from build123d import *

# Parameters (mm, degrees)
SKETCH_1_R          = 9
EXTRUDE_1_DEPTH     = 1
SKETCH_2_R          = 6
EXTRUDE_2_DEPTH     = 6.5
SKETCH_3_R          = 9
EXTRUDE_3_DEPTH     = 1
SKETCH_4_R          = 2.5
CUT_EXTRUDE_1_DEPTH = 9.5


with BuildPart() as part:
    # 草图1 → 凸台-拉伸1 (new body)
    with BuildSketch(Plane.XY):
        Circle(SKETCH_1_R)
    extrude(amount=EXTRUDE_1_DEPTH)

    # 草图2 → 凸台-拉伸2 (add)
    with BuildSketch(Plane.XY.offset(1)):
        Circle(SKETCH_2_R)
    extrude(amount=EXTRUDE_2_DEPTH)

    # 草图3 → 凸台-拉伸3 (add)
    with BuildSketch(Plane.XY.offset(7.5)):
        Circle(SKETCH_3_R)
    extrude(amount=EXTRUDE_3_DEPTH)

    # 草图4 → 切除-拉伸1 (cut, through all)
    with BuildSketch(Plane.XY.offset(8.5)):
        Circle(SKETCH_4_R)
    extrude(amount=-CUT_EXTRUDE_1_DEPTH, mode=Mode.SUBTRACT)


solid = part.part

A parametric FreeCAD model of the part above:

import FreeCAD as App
import Part
import Sketcher

V = App.Vector

doc = App.newDocument("Part")
body = doc.addObject("PartDesign::Body", "Body")

# Sketch on XY plane
sketch1 = body.newObject("Sketcher::SketchObject", "Sketch")
sketch1.AttachmentSupport = (doc.getObject("XY_Plane"), [""])
sketch1.MapMode = "FlatFace"
sketch1.addGeometry(Part.Circle(V(0, 0, 0), V(0, 0, 1), 9), False)
sketch1.addConstraint(Sketcher.Constraint("Coincident", 0, 3, -1, 1))
sketch1.addConstraint(Sketcher.Constraint("Diameter", 0, 18.0))
pad1 = body.newObject("PartDesign::Pad", "Pad")
pad1.Profile = sketch1
pad1.Length = 1

# Sketch on XY plane
sketch2 = body.newObject("Sketcher::SketchObject", "Sketch001")
sketch2.AttachmentSupport = (doc.getObject("XY_Plane"), [""])
sketch2.MapMode = "FlatFace"
sketch2.AttachmentOffset = App.Placement(V(0, 0, 1), App.Rotation())
sketch2.addGeometry(Part.Circle(V(0, 0, 0), V(0, 0, 1), 6), False)
sketch2.addConstraint(Sketcher.Constraint("Coincident", 0, 3, -1, 1))
sketch2.addConstraint(Sketcher.Constraint("Diameter", 0, 12.0))
pad2 = body.newObject("PartDesign::Pad", "Pad001")
pad2.Profile = sketch2
pad2.Length = 6.5

# Sketch on XY plane
sketch3 = body.newObject("Sketcher::SketchObject", "Sketch002")
sketch3.AttachmentSupport = (doc.getObject("XY_Plane"), [""])
sketch3.MapMode = "FlatFace"
sketch3.AttachmentOffset = App.Placement(V(0, 0, 7.5), App.Rotation())
sketch3.addGeometry(Part.Circle(V(0, 0, 0), V(0, 0, 1), 9), False)
sketch3.addConstraint(Sketcher.Constraint("Coincident", 0, 3, -1, 1))
sketch3.addConstraint(Sketcher.Constraint("Diameter", 0, 18.0))
pad3 = body.newObject("PartDesign::Pad", "Pad002")
pad3.Profile = sketch3
pad3.Length = 1

# Sketch on XY plane
sketch4 = body.newObject("Sketcher::SketchObject", "Sketch003")
sketch4.AttachmentSupport = (doc.getObject("XY_Plane"), [""])
sketch4.MapMode = "FlatFace"
sketch4.AttachmentOffset = App.Placement(V(0, 0, 8.5), App.Rotation())
sketch4.addGeometry(Part.Circle(V(0, 0, 0), V(0, 0, 1), 2.5), False)
sketch4.addConstraint(Sketcher.Constraint("Coincident", 0, 3, -1, 1))
sketch4.addConstraint(Sketcher.Constraint("Diameter", 0, 5.0))
pocket1 = body.newObject("PartDesign::Pocket", "Pocket")
pocket1.Profile = sketch4
pocket1.Type = "ThroughAll"

doc.recompute()
